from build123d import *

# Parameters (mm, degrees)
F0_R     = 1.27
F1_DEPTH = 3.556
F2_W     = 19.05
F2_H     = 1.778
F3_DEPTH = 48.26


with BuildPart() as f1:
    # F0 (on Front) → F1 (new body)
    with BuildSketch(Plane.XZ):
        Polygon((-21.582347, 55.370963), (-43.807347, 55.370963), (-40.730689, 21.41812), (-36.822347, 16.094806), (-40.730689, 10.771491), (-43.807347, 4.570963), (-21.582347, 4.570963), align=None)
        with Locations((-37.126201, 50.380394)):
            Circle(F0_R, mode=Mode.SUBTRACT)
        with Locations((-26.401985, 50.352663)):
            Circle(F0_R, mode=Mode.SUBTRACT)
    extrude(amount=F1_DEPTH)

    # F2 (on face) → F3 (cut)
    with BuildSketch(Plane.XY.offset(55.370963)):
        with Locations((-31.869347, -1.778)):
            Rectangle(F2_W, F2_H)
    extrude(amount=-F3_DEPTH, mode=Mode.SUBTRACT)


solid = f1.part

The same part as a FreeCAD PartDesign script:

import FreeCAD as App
import Part
import Sketcher
Q = App.Units.Quantity

doc = App.newDocument("Part")
body = doc.addObject("PartDesign::Body", "Body")

# Sketch on XZ plane
sketch1 = doc.addObject("Sketcher::SketchObject", "Sketch")
body.addObject(sketch1)
sketch1.AttachmentSupport = (doc.XZ_Plane, [""])
sketch1.MapMode = "FlatFace"
sketch1.addGeometry([
    Part.LineSegment(App.Vector(-21.582347, 55.370963, 0), App.Vector(-43.807347, 55.370963, 0)),  # 0
    Part.LineSegment(App.Vector(-43.807347, 55.370963, 0), App.Vector(-40.730689, 21.41812, 0)),  # 1
    Part.LineSegment(App.Vector(-40.730689, 21.41812, 0), App.Vector(-36.822347, 16.094806, 0)),  # 2
    Part.LineSegment(App.Vector(-36.822347, 16.094806, 0), App.Vector(-40.730689, 10.771491, 0)),  # 3
    Part.LineSegment(App.Vector(-40.730689, 10.771491, 0), App.Vector(-43.807347, 4.570963, 0)),  # 4
    Part.LineSegment(App.Vector(-43.807347, 4.570963, 0), App.Vector(-21.582347, 4.570963, 0)),  # 5
    Part.LineSegment(App.Vector(-21.582347, 4.570963, 0), App.Vector(-21.582347, 55.370963, 0)),  # 6
    Part.Circle(App.Vector(-26.401985, 50.352663, 0), App.Vector(0, 0, 1), 1.27),  # 7
    Part.Circle(App.Vector(-37.126201, 50.380394, 0), App.Vector(0, 0, 1), 1.27),  # 8
], False)
sketch1.addConstraint([
    Sketcher.Constraint("Coincident", 0, 2, 1, 1),
    Sketcher.Constraint("Coincident", 1, 2, 2, 1),
    Sketcher.Constraint("Coincident", 2, 2, 3, 1),
    Sketcher.Constraint("Coincident", 3, 2, 4, 1),
    Sketcher.Constraint("Coincident", 4, 2, 5, 1),
    Sketcher.Constraint("Coincident", 5, 2, 6, 1),
    Sketcher.Constraint("Coincident", 6, 2, 0, 1),
    Sketcher.Constraint("Horizontal", 0),
    Sketcher.Constraint("Horizontal", 5),
    Sketcher.Constraint("Vertical", 6),
    Sketcher.Constraint("Equal", 7, 8),
    Sketcher.Constraint("Vertical", 1, 2, 3, 2),
    Sketcher.Constraint("Vertical", 0, 2, 4, 2),
    Sketcher.Constraint("Equal", 2, 3),
    Sketcher.Constraint("Diameter", 7, Q("0.1 in")),
    Sketcher.Constraint("DistanceY", 6, 1, 6, 2, Q("2 in")),
    Sketcher.Constraint("DistanceX", 2, 2, 5, 2, Q("0.6 in")),
    Sketcher.Constraint("Distance", 2, Q("0.26 in")),
    Sketcher.Constraint("DistanceX", 0, 2, 0, 1, Q("0.875 in")),
    Sketcher.Constraint("DistanceX", 8, 3, -1, 1, 37.126201),
    Sketcher.Constraint("DistanceY", 7, 3, 0, 2, 5.0183),
    Sketcher.Constraint("DistanceX", 1, 2, -1, 1, 40.730689),
    Sketcher.Constraint("DistanceY", -1, 1, 1, 2, 21.41812),
    Sketcher.Constraint("DistanceY", -1, 1, 3, 2, 10.771491),
    Sketcher.Constraint("DistanceY", 7, 3, 8, 3, 0.027731),
    Sketcher.Constraint("DistanceX", 0, 2, 7, 3, 17.405362),
    Sketcher.Constraint("DistanceY", 2, 2, 8, 3, 34.285588),
])
pad1 = doc.addObject("PartDesign::Pad", "Pad")
body.addObject(pad1)
pad1.Profile = sketch1
pad1.Length = Q("0.14 in")

# Sketch on XY plane
sketch2 = doc.addObject("Sketcher::SketchObject", "Sketch001")
body.addObject(sketch2)
sketch2.AttachmentSupport = (doc.XY_Plane, [""])
sketch2.MapMode = "FlatFace"
sketch2.AttachmentOffset = App.Placement(App.Vector(0, 0, 55.370963), App.Rotation())
sketch2.addGeometry([
    Part.LineSegment(App.Vector(-41.394347, -0.889, 0), App.Vector(-41.394347, -2.667, 0)),
    Part.LineSegment(App.Vector(-41.394347, -2.667, 0), App.Vector(-22.344347, -2.667, 0)),
    Part.LineSegment(App.Vector(-22.344347, -2.667, 0), App.Vector(-22.344347, -0.889, 0)),
    Part.LineSegment(App.Vector(-22.344347, -0.889, 0), App.Vector(-41.394347, -0.889, 0)),
], False)
sketch2.addConstraint([
    Sketcher.Constraint("Coincident", 0, 2, 1, 1),
    Sketcher.Constraint("Coincident", 1, 2, 2, 1),
    Sketcher.Constraint("Coincident", 2, 2, 3, 1),
    Sketcher.Constraint("Coincident", 3, 2, 0, 1),
    Sketcher.Constraint("Vertical", 0),
    Sketcher.Constraint("Horizontal", 1),
    Sketcher.Constraint("Vertical", 2),
    Sketcher.Constraint("Horizontal", 3),
    Sketcher.Constraint("DistanceX", 1, 1, 1, 2, Q("0.75 in")),
    Sketcher.Constraint("DistanceY", 0, 2, 0, 1, Q("0.07 in")),
    Sketcher.Constraint("DistanceY", 0, 2, -1, 1, Q("0.105 in")),
    Sketcher.Constraint("DistanceX", 0, 2, -1, 1, 41.394347),
])
pocket1 = doc.addObject("PartDesign::Pocket", "Pocket")
body.addObject(pocket1)
pocket1.Profile = sketch2
pocket1.Length = Q("1.9 in")

doc.recompute()
